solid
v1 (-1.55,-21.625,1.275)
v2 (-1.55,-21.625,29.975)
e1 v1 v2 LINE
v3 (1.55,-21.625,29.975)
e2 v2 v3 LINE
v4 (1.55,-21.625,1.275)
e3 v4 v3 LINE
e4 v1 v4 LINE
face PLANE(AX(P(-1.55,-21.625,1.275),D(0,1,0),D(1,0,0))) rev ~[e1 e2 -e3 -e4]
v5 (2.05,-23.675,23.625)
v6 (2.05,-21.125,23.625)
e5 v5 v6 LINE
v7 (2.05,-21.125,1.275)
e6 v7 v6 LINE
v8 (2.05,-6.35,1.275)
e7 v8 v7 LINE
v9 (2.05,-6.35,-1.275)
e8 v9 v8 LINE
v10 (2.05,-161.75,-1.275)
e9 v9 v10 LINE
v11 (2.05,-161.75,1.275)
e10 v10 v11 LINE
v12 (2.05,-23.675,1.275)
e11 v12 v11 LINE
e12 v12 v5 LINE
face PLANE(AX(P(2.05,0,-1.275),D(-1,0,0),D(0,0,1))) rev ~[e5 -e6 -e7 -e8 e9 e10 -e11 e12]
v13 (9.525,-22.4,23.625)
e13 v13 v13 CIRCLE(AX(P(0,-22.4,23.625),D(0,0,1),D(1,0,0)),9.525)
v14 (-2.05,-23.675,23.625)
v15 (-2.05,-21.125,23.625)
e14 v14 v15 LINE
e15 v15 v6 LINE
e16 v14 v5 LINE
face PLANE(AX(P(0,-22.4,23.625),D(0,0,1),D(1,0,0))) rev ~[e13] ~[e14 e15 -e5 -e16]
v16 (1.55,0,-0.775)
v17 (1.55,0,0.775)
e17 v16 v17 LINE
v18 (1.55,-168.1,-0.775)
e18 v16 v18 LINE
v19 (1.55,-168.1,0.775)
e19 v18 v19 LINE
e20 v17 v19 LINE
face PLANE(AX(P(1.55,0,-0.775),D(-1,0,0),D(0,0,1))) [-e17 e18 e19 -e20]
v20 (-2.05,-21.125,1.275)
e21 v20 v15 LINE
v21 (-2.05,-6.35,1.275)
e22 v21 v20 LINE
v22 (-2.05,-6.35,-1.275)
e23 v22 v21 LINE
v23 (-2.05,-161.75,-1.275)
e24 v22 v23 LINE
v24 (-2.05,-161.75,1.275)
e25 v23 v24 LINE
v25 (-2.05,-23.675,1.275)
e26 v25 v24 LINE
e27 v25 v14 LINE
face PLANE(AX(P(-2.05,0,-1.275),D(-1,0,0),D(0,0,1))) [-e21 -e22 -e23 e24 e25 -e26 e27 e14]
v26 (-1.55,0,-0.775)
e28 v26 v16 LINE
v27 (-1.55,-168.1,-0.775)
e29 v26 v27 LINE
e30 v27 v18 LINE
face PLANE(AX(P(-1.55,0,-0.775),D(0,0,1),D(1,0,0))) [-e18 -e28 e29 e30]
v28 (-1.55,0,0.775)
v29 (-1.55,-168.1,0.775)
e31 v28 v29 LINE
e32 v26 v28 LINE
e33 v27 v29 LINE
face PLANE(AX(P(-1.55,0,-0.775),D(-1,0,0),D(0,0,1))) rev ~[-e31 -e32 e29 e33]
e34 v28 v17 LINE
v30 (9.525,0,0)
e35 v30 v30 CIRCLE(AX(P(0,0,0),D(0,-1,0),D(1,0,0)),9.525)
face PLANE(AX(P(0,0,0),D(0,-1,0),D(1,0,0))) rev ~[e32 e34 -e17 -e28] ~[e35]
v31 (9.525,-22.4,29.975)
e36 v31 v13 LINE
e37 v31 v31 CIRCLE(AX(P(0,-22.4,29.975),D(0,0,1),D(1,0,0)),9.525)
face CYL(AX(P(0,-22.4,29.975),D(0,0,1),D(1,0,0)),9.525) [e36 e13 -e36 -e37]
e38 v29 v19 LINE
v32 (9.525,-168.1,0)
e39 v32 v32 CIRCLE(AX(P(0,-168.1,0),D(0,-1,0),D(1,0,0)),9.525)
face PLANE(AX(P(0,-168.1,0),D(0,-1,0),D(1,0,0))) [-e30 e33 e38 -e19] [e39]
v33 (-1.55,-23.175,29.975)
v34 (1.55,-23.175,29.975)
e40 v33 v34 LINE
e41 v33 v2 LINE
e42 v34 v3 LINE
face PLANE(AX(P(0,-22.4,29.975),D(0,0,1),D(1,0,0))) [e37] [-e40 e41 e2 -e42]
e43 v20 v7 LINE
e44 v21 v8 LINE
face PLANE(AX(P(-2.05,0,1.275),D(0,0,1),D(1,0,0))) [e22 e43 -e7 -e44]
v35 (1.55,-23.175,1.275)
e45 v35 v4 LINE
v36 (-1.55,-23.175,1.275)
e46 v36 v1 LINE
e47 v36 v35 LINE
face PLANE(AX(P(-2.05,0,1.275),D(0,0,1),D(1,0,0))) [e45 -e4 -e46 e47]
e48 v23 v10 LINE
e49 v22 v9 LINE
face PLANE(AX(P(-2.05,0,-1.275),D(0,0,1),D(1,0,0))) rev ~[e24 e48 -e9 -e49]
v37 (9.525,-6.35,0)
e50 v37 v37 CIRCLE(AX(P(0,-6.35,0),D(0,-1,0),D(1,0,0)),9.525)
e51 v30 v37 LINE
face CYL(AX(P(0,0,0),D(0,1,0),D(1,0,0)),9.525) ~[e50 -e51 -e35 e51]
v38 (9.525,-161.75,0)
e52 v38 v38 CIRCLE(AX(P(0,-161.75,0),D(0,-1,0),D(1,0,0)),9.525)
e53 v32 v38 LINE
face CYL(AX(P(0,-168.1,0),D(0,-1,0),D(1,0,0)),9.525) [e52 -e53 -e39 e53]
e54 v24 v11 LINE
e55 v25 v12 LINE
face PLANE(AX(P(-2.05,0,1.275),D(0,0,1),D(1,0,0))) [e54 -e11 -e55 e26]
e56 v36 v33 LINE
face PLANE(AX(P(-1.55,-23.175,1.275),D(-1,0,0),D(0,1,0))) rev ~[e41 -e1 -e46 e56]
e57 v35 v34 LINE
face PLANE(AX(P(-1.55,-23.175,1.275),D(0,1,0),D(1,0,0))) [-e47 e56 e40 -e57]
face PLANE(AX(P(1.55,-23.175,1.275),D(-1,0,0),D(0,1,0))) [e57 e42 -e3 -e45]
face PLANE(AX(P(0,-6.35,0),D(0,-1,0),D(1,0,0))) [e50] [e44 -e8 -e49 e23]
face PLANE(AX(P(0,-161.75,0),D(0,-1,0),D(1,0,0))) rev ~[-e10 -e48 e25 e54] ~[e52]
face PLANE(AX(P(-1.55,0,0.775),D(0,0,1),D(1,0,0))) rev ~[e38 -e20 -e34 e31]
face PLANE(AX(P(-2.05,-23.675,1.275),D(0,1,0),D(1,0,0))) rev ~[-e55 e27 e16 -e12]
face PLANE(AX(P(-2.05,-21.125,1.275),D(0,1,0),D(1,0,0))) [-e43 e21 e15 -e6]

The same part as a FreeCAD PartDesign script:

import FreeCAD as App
import Part
import Sketcher

V = App.Vector

doc = App.newDocument("Part")
body = doc.addObject("PartDesign::Body", "Body")

# Sketch on XZ plane
sketch1 = body.newObject("Sketcher::SketchObject", "Sketch")
sketch1.AttachmentSupport = (doc.getObject("XZ_Plane"), [""])
sketch1.MapMode = "FlatFace"
sketch1.addGeometry(Part.LineSegment(V(-2, 1.3, 0), V(-2, -1.3, 0)), False)
sketch1.addGeometry(Part.LineSegment(V(-2, -1.3, 0), V(2, -1.3, 0)), False)
sketch1.addGeometry(Part.LineSegment(V(2, -1.3, 0), V(2, 1.3, 0)), False)
sketch1.addGeometry(Part.LineSegment(V(2, 1.3, 0), V(-2, 1.3, 0)), False)
sketch1.addGeometry(Part.LineSegment(V(1.6, -0.8, 0), V(-1.6, -0.8, 0)), False)
sketch1.addGeometry(Part.LineSegment(V(-1.6, -0.8, 0), V(-1.6, 0.8, 0)), False)
sketch1.addGeometry(Part.LineSegment(V(-1.6, 0.8, 0), V(1.6, 0.8, 0)), False)
sketch1.addGeometry(Part.LineSegment(V(1.6, 0.8, 0), V(1.6, -0.8, 0)), False)
sketch1.addConstraint(Sketcher.Constraint("Coincident", 0, 2, 1, 1))
sketch1.addConstraint(Sketcher.Constraint("Coincident", 1, 2, 2, 1))
sketch1.addConstraint(Sketcher.Constraint("Coincident", 2, 2, 3, 1))
sketch1.addConstraint(Sketcher.Constraint("Coincident", 3, 2, 0, 1))
sketch1.addConstraint(Sketcher.Constraint("Coincident", 4, 2, 5, 1))
sketch1.addConstraint(Sketcher.Constraint("Coincident", 5, 2, 6, 1))
sketch1.addConstraint(Sketcher.Constraint("Coincident", 6, 2, 7, 1))
sketch1.addConstraint(Sketcher.Constraint("Coincident", 7, 2, 4, 1))
sketch1.addConstraint(Sketcher.Constraint("Vertical", 0))
sketch1.addConstraint(Sketcher.Constraint("Horizontal", 1))
sketch1.addConstraint(Sketcher.Constraint("Vertical", 2))
sketch1.addConstraint(Sketcher.Constraint("Horizontal", 3))
sketch1.addConstraint(Sketcher.Constraint("Horizontal", 4))
sketch1.addConstraint(Sketcher.Constraint("Vertical", 5))
sketch1.addConstraint(Sketcher.Constraint("Horizontal", 6))
sketch1.addConstraint(Sketcher.Constraint("Vertical", 7))
sketch1.addConstraint(Sketcher.Constraint("Symmetric", 0, 2, 2, 2, -1, 1))
sketch1.addConstraint(Sketcher.Constraint("Symmetric", 4, 2, 6, 2, -1, 1))
sketch1.addConstraint(Sketcher.Constraint("DistanceX", 1, 1, 1, 2, 4.1))
sketch1.addConstraint(Sketcher.Constraint("DistanceX", 4, 2, 4, 1, 3.1))
sketch1.addConstraint(Sketcher.Constraint("DistanceY", 0, 2, 0, 1, 2.55))
sketch1.addConstraint(Sketcher.Constraint("DistanceY", 5, 1, 5, 2, 1.55))
pad1 = body.newObject("PartDesign::Pad", "Pad")
pad1.Profile = sketch1
pad1.Length = 168.1

# Sketch on XZ plane
sketch2 = body.newObject("Sketcher::SketchObject", "Sketch001")
sketch2.AttachmentSupport = (doc.getObject("XZ_Plane"), [""])
sketch2.MapMode = "FlatFace"
sketch2.addGeometry(Part.Circle(V(0, 0, 0), V(0, 0, 1), 9.5), False)
sketch2.addGeometry(Part.LineSegment(V(2, -1.3, 0), V(-2, -1.3, 0)), False)
sketch2.addGeometry(Part.LineSegment(V(-2, -1.3, 0), V(-2, 1.3, 0)), False)
sketch2.addGeometry(Part.LineSegment(V(-2, 1.3, 0), V(2, 1.3, 0)), False)
sketch2.addGeometry(Part.LineSegment(V(2, 1.3, 0), V(2, -1.3, 0)), False)
sketch2.addConstraint(Sketcher.Constraint("Coincident", 1, 2, 2, 1))
sketch2.addConstraint(Sketcher.Constraint("Coincident", 2, 2, 3, 1))
sketch2.addConstraint(Sketcher.Constraint("Coincident", 3, 2, 4, 1))
sketch2.addConstraint(Sketcher.Constraint("Coincident", 4, 2, 1, 1))
sketch2.addConstraint(Sketcher.Constraint("Horizontal", 1))
sketch2.addConstraint(Sketcher.Constraint("Vertical", 2))
sketch2.addConstraint(Sketcher.Constraint("Horizontal", 3))
sketch2.addConstraint(Sketcher.Constraint("Vertical", 4))
sketch2.addConstraint(Sketcher.Constraint("Coincident", 0, 3, -1, 1))
sketch2.addConstraint(Sketcher.Constraint("Symmetric", 1, 2, 3, 2, -1, 1))
sketch2.addConstraint(Sketcher.Constraint("Diameter", 0, 19.05))
sketch2.addConstraint(Sketcher.Constraint("DistanceX", 1, 2, 1, 1, 4.1))
sketch2.addConstraint(Sketcher.Constraint("DistanceY", 2, 1, 2, 2, 2.55))
pad2 = body.newObject("PartDesign::Pad", "Pad001")
pad2.Profile = sketch2
pad2.Length = 6.35

# Sketch on XY plane
sketch3 = body.newObject("Sketcher::SketchObject", "Sketch002")
sketch3.AttachmentSupport = (doc.getObject("XY_Plane"), [""])
sketch3.MapMode = "FlatFace"
sketch3.AttachmentOffset = App.Placement(V(0, 0, 1.275), App.Rotation())
sketch3.addGeometry(Part.LineSegment(V(-2, -21.1, 0), V(-2, -23.7, 0)), False)
sketch3.addGeometry(Part.LineSegment(V(-2, -23.7, 0), V(2, -23.7, 0)), False)
sketch3.addGeometry(Part.LineSegment(V(2, -23.7, 0), V(2, -21.1, 0)), False)
sketch3.addGeometry(Part.LineSegment(V(2, -21.1, 0), V(-2, -21.1, 0)), False)
sketch3.addGeometry(Part.LineSegment(V(1.6, -23.2, 0), V(-1.6, -23.2, 0)), False)
sketch3.addGeometry(Part.LineSegment(V(-1.6, -23.2, 0), V(-1.6, -21.6, 0)), False)
sketch3.addGeometry(Part.LineSegment(V(-1.6, -21.6, 0), V(1.6, -21.6, 0)), False)
sketch3.addGeometry(Part.LineSegment(V(1.6, -21.6, 0), V(1.6, -23.2, 0)), False)
sketch3.addConstraint(Sketcher.Constraint("Coincident", 0, 2, 1, 1))
sketch3.addConstraint(Sketcher.Constraint("Coincident", 1, 2, 2, 1))
sketch3.addConstraint(Sketcher.Constraint("Coincident", 2, 2, 3, 1))
sketch3.addConstraint(Sketcher.Constraint("Coincident", 3, 2, 0, 1))
sketch3.addConstraint(Sketcher.Constraint("Coincident", 4, 2, 5, 1))
sketch3.addConstraint(Sketcher.Constraint("Coincident", 5, 2, 6, 1))
sketch3.addConstraint(Sketcher.Constraint("Coincident", 6, 2, 7, 1))
sketch3.addConstraint(Sketcher.Constraint("Coincident", 7, 2, 4, 1))
sketch3.addConstraint(Sketcher.Constraint("Vertical", 0))
sketch3.addConstraint(Sketcher.Constraint("Horizontal", 1))
sketch3.addConstraint(Sketcher.Constraint("Vertical", 2))
sketch3.addConstraint(Sketcher.Constraint("Horizontal", 3))
sketch3.addConstraint(Sketcher.Constraint("Horizontal", 4))
sketch3.addConstraint(Sketcher.Constraint("Vertical", 5))
sketch3.addConstraint(Sketcher.Constraint("Horizontal", 6))
sketch3.addConstraint(Sketcher.Constraint("Vertical", 7))
sketch3.addConstraint(Sketcher.Constraint("DistanceX", 1, 1, 1, 2, 4.1))
sketch3.addConstraint(Sketcher.Constraint("DistanceX", 4, 2, 4, 1, 3.1))
sketch3.addConstraint(Sketcher.Constraint("DistanceY", 0, 2, 0, 1, 2.55))
sketch3.addConstraint(Sketcher.Constraint("DistanceY", 5, 1, 5, 2, 1.55))
sketch3.addConstraint(Sketcher.Constraint("DistanceX", 0, 2, 4, 2, 0.5))
sketch3.addConstraint(Sketcher.Constraint("DistanceY", 0, 2, 4, 2, 0.5))
sketch3.addConstraint(Sketcher.Constraint("DistanceX", 0, 2, -1, 1, 2.05))
sketch3.addConstraint(Sketcher.Constraint("DistanceY", 0, 2, -1, 1, 23.675))
pad3 = body.newObject("PartDesign::Pad", "Pad002")
pad3.Profile = sketch3
pad3.Length = 28.7

# Sketch on XY plane
sketch4 = body.newObject("Sketcher::SketchObject", "Sketch003")
sketch4.AttachmentSupport = (doc.getObject("XY_Plane"), [""])
sketch4.MapMode = "FlatFace"
sketch4.AttachmentOffset = App.Placement(V(0, 0, 29.975), App.Rotation())
sketch4.addGeometry(Part.Circle(V(0, -22.4, 0), V(0, 0, 1), 9.5), False)
sketch4.addGeometry(Part.LineSegment(V(2, -23.7, 0), V(-2, -23.7, 0)), False)
sketch4.addGeometry(Part.LineSegment(V(-2, -23.7, 0), V(-2, -21.1, 0)), False)
sketch4.addGeometry(Part.LineSegment(V(-2, -21.1, 0), V(2, -21.1, 0)), False)
sketch4.addGeometry(Part.LineSegment(V(2, -21.1, 0), V(2, -23.7, 0)), False)
sketch4.addConstraint(Sketcher.Constraint("Coincident", 1, 2, 2, 1))
sketch4.addConstraint(Sketcher.Constraint("Coincident", 2, 2, 3, 1))
sketch4.addConstraint(Sketcher.Constraint("Coincident", 3, 2, 4, 1))
sketch4.addConstraint(Sketcher.Constraint("Coincident", 4, 2, 1, 1))
sketch4.addConstraint(Sketcher.Constraint("Horizontal", 1))
sketch4.addConstraint(Sketcher.Constraint("Vertical", 2))
sketch4.addConstraint(Sketcher.Constraint("Horizontal", 3))
sketch4.addConstraint(Sketcher.Constraint("Vertical", 4))
sketch4.addConstraint(Sketcher.Constraint("PointOnObject", 0, 3, -2))
sketch4.addConstraint(Sketcher.Constraint("Diameter", 0, 19.05))
sketch4.addConstraint(Sketcher.Constraint("DistanceX", 1, 2, 1, 1, 4.1))
sketch4.addConstraint(Sketcher.Constraint("DistanceY", 2, 1, 2, 2, 2.55))
sketch4.addConstraint(Sketcher.Constraint("DistanceY", 0, 3, -1, 1, 22.4))
sketch4.addConstraint(Sketcher.Constraint("DistanceX", 1, 2, -1, 1, 2.05))
sketch4.addConstraint(Sketcher.Constraint("DistanceY", 1, 2, -1, 1, 23.675))
pad4 = body.newObject("PartDesign::Pad", "Pad003")
pad4.Profile = sketch4
pad4.Length = 6.35
pad4.Reversed = True

# Sketch on XZ plane
sketch5 = body.newObject("Sketcher::SketchObject", "Sketch004")
sketch5.AttachmentSupport = (doc.getObject("XZ_Plane"), [""])
sketch5.MapMode = "FlatFace"
sketch5.AttachmentOffset = App.Placement(V(0, 0, 168.1), App.Rotation())
sketch5.addGeometry(Part.Circle(V(0, 0, 0), V(0, 0, 1), 9.5), False)
sketch5.addGeometry(Part.LineSegment(V(2, -1.3, 0), V(-2, -1.3, 0)), False)
sketch5.addGeometry(Part.LineSegment(V(-2, -1.3, 0), V(-2, 1.3, 0)), False)
sketch5.addGeometry(Part.LineSegment(V(-2, 1.3, 0), V(2, 1.3, 0)), False)
sketch5.addGeometry(Part.LineSegment(V(2, 1.3, 0), V(2, -1.3, 0)), False)
sketch5.addConstraint(Sketcher.Constraint("Coincident", 1, 2, 2, 1))
sketch5.addConstraint(Sketcher.Constraint("Coincident", 2, 2, 3, 1))
sketch5.addConstraint(Sketcher.Constraint("Coincident", 3, 2, 4, 1))
sketch5.addConstraint(Sketcher.Constraint("Coincident", 4, 2, 1, 1))
sketch5.addConstraint(Sketcher.Constraint("Horizontal", 1))
sketch5.addConstraint(Sketcher.Constraint("Vertical", 2))
sketch5.addConstraint(Sketcher.Constraint("Horizontal", 3))
sketch5.addConstraint(Sketcher.Constraint("Vertical", 4))
sketch5.addConstraint(Sketcher.Constraint("Coincident", 0, 3, -1, 1))
sketch5.addConstraint(Sketcher.Constraint("Symmetric", 1, 2, 3, 2, -1, 1))
sketch5.addConstraint(Sketcher.Constraint("Diameter", 0, 19.05))
sketch5.addConstraint(Sketcher.Constraint("DistanceX", 1, 2, 1, 1, 4.1))
sketch5.addConstraint(Sketcher.Constraint("DistanceY", 2, 1, 2, 2, 2.55))
pad5 = body.newObject("PartDesign::Pad", "Pad004")
pad5.Profile = sketch5
pad5.Length = 6.35
pad5.Reversed = True

doc.recompute()
